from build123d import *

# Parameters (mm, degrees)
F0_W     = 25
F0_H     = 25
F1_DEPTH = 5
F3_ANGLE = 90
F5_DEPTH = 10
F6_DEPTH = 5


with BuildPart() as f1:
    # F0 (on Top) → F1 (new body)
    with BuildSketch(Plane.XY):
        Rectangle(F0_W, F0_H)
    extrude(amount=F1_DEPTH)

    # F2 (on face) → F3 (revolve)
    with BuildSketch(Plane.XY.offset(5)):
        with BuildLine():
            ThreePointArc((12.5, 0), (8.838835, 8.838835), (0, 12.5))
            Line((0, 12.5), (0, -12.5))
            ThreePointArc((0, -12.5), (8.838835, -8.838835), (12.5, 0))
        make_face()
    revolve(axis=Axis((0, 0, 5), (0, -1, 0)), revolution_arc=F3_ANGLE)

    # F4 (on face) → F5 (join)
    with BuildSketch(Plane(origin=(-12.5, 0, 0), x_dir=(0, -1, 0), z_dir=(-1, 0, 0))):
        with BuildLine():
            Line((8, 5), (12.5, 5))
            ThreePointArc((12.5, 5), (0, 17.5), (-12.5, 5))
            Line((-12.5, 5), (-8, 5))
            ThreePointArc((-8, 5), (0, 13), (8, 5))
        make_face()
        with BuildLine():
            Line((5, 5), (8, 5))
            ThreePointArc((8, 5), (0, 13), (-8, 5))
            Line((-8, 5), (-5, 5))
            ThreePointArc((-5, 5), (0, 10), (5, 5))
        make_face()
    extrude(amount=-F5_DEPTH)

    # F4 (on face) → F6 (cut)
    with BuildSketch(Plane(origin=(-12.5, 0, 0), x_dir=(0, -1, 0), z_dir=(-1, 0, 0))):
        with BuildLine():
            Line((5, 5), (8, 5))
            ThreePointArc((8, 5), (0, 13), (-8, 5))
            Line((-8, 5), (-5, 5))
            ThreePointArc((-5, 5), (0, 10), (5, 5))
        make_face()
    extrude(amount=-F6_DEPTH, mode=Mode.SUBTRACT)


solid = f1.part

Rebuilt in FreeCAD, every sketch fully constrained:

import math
import FreeCAD as App
import Part
import Sketcher

V = App.Vector
Q = App.Units.Quantity


def add_polygon(sketch, points):
    """Adds a closed chain of lines whose ends are joined by coincident constraints."""
    first, n = sketch.GeometryCount, len(points)
    for a, b in zip(points, points[1:] + points[:1]):
        sketch.addGeometry(Part.LineSegment(App.Vector(*a, 0), App.Vector(*b, 0)), False)
    for i in range(n):
        sketch.addConstraint(Sketcher.Constraint("Coincident", first + i, 2, first + (i + 1) % n, 1))

doc = App.newDocument("Part")
body = doc.addObject("PartDesign::Body", "Body")

sketch1 = body.newObject("Sketcher::SketchObject", "Sketch")
sketch1.AttachmentSupport = (doc.getObject("XY_Plane"), [""])
sketch1.MapMode = "FlatFace"
add_polygon(sketch1, [(-12.5, 12.5), (-12.5, -12.5), (12.5, -12.5), (12.5, 12.5)])
sketch1.addConstraint([
    Sketcher.Constraint("Vertical", 0),
    Sketcher.Constraint("Horizontal", 1),
    Sketcher.Constraint("Vertical", 2),
    Sketcher.Constraint("Horizontal", 3),
    Sketcher.Constraint("Symmetric", 0, 2, 2, 2, -1, 1),
    Sketcher.Constraint("Equal", 3, 0),
    Sketcher.Constraint("DistanceX", 1, 1, 1, 2, Q("25 mm")),
])
pad1 = body.newObject("PartDesign::Pad", "Pad")
pad1.Profile = sketch1
pad1.Length = 5

sketch2 = body.newObject("Sketcher::SketchObject", "Sketch001")
sketch2.AttachmentSupport = (doc.getObject("XY_Plane"), [""])
sketch2.MapMode = "FlatFace"
sketch2.AttachmentOffset = App.Placement(V(0, 0, 5), App.Rotation())
sketch2.addGeometry([
    Part.ArcOfCircle(Part.Circle(V(0.000001, 0.000001, 0), V(0, 0, 1), 12.499999), math.radians(-0.000004), math.radians(90.000004)),
    Part.LineSegment(V(0, 12.5, 0), V(0, -12.5, 0)),
    Part.ArcOfCircle(Part.Circle(V(0.000001, -0.000001, 0), V(0, 0, 1), 12.499999), math.radians(-90.000004), math.radians(0.000004)),
], False)
sketch2.addConstraint([
    Sketcher.Constraint("Coincident", 0, 2, 1, 1),
    Sketcher.Constraint("Coincident", 1, 2, 2, 1),
    Sketcher.Constraint("Tangent", 2, 2, 0, 1),
    Sketcher.Constraint("Vertical", 1),
    Sketcher.Constraint("Coincident", 0, 3, -1, 1),
    Sketcher.Constraint("Equal", 0, 2),
    Sketcher.Constraint("PointOnObject", 0, 2, -2),
    Sketcher.Constraint("PointOnObject", 2, 2, -1),
    Sketcher.Constraint("Radius", 0, Q("12.499999 mm")),
])
revolution = body.newObject("PartDesign::Revolution", "Revolution")
revolution.Profile = sketch2
revolution.ReferenceAxis = (sketch2, ["V_Axis"])
revolution.Angle = 90
revolution.Reversed = True

sketch3 = body.newObject("Sketcher::SketchObject", "Sketch002")
sketch3.AttachmentSupport = (doc.getObject("YZ_Plane"), [""])
sketch3.MapMode = "FlatFace"
sketch3.AttachmentOffset = App.Placement(V(0, 0, -12.5), App.Rotation())
sketch3.addGeometry([
    Part.ArcOfCircle(Part.Circle(V(0, 5, 0), V(0, 0, 1), 12.5), math.radians(0), math.radians(180)),
    Part.LineSegment(V(12.5, 5, 0), V(5, 5, 0)),
    Part.ArcOfCircle(Part.Circle(V(0, 5, 0), V(0, 0, 1), 5), math.radians(0), math.radians(180)),
    Part.LineSegment(V(-5, 5, 0), V(-12.5, 5, 0)),
], False)
sketch3.addConstraint([
    Sketcher.Constraint("Coincident", 0, 1, 1, 1),
    Sketcher.Constraint("Coincident", 1, 2, 2, 1),
    Sketcher.Constraint("Coincident", 2, 2, 3, 1),
    Sketcher.Constraint("Coincident", 3, 2, 0, 2),
    Sketcher.Constraint("Horizontal", 1),
    Sketcher.Constraint("Horizontal", 3),
    Sketcher.Constraint("Coincident", 2, 3, 0, 3),
    Sketcher.Constraint("Symmetric", 1, 2, 2, 2, -2),
    Sketcher.Constraint("Horizontal", 2, 3, 0, 1),
    Sketcher.Constraint("Radius", 2, Q("5 mm")),
    Sketcher.Constraint("Radius", 0, Q("12.5 mm")),
    Sketcher.Constraint("DistanceY", -1, 1, 0, 3, Q("5 mm")),
])
pad2 = body.newObject("PartDesign::Pad", "Pad001")
pad2.Profile = sketch3
pad2.Length = 10

sketch4 = body.newObject("Sketcher::SketchObject", "Sketch003")
sketch4.AttachmentSupport = (doc.getObject("YZ_Plane"), [""])
sketch4.MapMode = "FlatFace"
sketch4.AttachmentOffset = App.Placement(V(0, 0, -12.5), App.Rotation())
sketch4.addGeometry([
    Part.LineSegment(V(-5, 5, 0), V(-8, 5, 0)),
    Part.ArcOfCircle(Part.Circle(V(0, 5, 0), V(0, 0, 1), 8), math.radians(0), math.radians(180)),
    Part.LineSegment(V(8, 5, 0), V(5, 5, 0)),
    Part.ArcOfCircle(Part.Circle(V(0, 5, 0), V(0, 0, 1), 5), math.radians(0), math.radians(180)),
], False)
sketch4.addConstraint([
    Sketcher.Constraint("Coincident", 0, 2, 1, 2),
    Sketcher.Constraint("Coincident", 1, 1, 2, 1),
    Sketcher.Constraint("Coincident", 2, 2, 3, 1),
    Sketcher.Constraint("Coincident", 3, 2, 0, 1),
    Sketcher.Constraint("Horizontal", 0),
    Sketcher.Constraint("Horizontal", 2),
    Sketcher.Constraint("Coincident", 3, 3, 1, 3),
    Sketcher.Constraint("Symmetric", 0, 2, 1, 1, -2),
    Sketcher.Constraint("Horizontal", 3, 3, 0, 2),
    Sketcher.Constraint("Radius", 1, Q("8 mm")),
    Sketcher.Constraint("Radius", 3, Q("5 mm")),
    Sketcher.Constraint("DistanceY", -1, 1, 1, 3, Q("5 mm")),
])
pocket1 = body.newObject("PartDesign::Pocket", "Pocket")
pocket1.Profile = sketch4
pocket1.Length = 5
pocket1.Reversed = True

doc.recompute()
